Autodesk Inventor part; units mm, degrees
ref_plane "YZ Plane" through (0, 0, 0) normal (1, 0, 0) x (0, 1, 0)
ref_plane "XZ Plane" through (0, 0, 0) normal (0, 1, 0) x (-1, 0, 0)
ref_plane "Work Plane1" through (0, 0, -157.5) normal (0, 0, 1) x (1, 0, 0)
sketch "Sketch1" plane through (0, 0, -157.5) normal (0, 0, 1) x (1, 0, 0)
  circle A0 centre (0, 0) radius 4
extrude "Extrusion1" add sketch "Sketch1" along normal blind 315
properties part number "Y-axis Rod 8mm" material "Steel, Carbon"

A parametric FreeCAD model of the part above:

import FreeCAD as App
import Part
import Sketcher
from FreeCAD import Vector

doc = App.newDocument("Part")
body = doc.addObject("PartDesign::Body", "Body")

sketch1 = body.newObject("Sketcher::SketchObject", "Sketch")
sketch1.AttachmentSupport = (doc.getObject("XY_Plane"), [""])
sketch1.MapMode = "FlatFace"
sketch1.AttachmentOffset = App.Placement(Vector(0, 0, -157.5), App.Rotation())
sketch1.addGeometry(Part.Circle(Vector(0, 0, 0), Vector(0, 0, 1), 4), False)
sketch1.addConstraint([
    Sketcher.Constraint("Coincident", 0, 3, -1, 1),
    Sketcher.Constraint("Diameter", 0, 8.0),
])
pad1 = body.newObject("PartDesign::Pad", "Pad")
pad1.Profile = sketch1
pad1.Length = 315

doc.recompute()
